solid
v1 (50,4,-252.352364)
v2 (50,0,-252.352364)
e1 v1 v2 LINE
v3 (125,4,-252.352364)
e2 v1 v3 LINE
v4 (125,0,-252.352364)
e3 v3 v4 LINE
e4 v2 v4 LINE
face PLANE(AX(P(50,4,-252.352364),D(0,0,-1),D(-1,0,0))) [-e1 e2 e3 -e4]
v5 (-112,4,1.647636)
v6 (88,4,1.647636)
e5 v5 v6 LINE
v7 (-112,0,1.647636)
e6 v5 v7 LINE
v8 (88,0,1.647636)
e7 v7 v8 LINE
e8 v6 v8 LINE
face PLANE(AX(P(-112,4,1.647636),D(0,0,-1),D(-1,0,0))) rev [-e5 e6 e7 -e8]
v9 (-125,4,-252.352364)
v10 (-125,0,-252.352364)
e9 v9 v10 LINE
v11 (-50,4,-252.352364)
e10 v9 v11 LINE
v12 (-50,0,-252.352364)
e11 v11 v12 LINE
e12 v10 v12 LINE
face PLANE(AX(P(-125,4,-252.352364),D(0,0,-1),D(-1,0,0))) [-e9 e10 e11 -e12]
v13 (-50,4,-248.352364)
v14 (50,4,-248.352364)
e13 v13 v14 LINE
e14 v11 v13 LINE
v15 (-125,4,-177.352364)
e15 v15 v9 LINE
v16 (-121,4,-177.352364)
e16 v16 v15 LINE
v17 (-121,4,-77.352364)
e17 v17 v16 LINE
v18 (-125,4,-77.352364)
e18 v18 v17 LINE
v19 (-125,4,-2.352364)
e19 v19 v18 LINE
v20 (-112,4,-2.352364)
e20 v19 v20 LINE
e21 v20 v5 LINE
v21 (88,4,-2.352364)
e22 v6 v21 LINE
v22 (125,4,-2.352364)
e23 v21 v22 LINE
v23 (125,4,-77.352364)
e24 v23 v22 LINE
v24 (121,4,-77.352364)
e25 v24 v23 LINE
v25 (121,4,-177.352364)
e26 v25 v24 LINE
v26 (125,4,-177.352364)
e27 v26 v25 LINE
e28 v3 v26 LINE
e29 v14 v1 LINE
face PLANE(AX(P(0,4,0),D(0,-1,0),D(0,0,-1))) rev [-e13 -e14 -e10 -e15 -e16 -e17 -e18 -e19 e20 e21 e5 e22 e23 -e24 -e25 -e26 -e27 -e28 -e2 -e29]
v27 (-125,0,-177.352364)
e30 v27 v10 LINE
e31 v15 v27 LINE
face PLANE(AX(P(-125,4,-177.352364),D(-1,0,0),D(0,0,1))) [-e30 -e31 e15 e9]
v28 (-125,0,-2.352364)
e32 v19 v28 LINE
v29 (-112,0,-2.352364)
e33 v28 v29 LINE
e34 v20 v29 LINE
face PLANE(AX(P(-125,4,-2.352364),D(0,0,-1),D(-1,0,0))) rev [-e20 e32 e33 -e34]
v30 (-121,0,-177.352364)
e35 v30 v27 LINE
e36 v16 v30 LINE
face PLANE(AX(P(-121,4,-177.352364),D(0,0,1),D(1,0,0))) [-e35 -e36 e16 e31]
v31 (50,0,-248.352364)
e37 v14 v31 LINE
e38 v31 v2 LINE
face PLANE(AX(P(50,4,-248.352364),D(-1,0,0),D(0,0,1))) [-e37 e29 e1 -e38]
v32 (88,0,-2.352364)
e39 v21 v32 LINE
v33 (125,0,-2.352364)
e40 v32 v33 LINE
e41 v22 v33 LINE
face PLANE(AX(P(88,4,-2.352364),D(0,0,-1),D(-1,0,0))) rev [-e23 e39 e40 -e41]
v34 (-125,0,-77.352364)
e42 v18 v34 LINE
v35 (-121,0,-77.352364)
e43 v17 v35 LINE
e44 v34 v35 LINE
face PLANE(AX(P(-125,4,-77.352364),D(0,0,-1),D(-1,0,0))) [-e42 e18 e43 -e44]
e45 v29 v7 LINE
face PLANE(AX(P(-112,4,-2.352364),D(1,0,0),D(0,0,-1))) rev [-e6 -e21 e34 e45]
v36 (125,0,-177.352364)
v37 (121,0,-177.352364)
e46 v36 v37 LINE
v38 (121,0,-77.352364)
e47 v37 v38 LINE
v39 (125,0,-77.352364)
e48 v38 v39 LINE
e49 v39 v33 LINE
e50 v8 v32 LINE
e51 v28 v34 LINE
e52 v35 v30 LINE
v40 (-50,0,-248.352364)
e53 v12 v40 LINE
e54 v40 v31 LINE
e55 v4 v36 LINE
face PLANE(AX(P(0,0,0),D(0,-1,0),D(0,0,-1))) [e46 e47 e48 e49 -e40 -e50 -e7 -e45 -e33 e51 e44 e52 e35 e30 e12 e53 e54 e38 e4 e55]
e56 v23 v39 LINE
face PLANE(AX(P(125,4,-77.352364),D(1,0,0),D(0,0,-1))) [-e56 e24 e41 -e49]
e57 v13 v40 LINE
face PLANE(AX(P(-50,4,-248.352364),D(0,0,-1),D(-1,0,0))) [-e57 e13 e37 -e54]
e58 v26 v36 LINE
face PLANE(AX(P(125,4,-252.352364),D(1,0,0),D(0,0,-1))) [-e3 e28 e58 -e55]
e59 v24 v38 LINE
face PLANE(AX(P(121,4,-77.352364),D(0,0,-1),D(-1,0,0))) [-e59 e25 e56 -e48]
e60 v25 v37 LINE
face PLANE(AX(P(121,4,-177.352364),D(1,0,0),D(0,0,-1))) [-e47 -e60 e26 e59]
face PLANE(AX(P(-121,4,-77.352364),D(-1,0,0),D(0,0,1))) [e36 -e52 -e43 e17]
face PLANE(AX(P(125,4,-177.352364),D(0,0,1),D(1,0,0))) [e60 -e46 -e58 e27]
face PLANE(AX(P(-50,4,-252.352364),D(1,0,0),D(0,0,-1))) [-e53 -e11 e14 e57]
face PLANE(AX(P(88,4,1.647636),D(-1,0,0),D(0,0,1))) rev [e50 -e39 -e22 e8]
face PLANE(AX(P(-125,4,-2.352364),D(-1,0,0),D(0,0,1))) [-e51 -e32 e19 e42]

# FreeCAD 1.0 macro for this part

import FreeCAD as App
import Part
import Sketcher

V = App.Vector

doc = App.newDocument("Part")
body = doc.addObject("PartDesign::Body", "Body")

# Sketch on XZ plane
sketch1 = doc.addObject("Sketcher::SketchObject", "Sketch")
body.addObject(sketch1)
sketch1.AttachmentSupport = (doc.XZ_Plane, [""])
sketch1.MapMode = "FlatFace"
sketch1.addGeometry(Part.LineSegment(V(-125, -2.4, 0), V(-112, -2.4, 0)), False)
sketch1.addGeometry(Part.LineSegment(V(-112, -2.4, 0), V(-112, 1.6, 0)), False)
sketch1.addGeometry(Part.LineSegment(V(-112, 1.6, 0), V(88, 1.6, 0)), False)
sketch1.addGeometry(Part.LineSegment(V(88, 1.6, 0), V(88, -2.4, 0)), False)
sketch1.addGeometry(Part.LineSegment(V(88, -2.4, 0), V(125, -2.4, 0)), False)
sketch1.addGeometry(Part.LineSegment(V(125, -2.4, 0), V(125, -77.4, 0)), False)
sketch1.addGeometry(Part.LineSegment(V(125, -77.4, 0), V(121, -77.4, 0)), False)
sketch1.addGeometry(Part.LineSegment(V(121, -77.4, 0), V(121, -177.4, 0)), False)
sketch1.addGeometry(Part.LineSegment(V(121, -177.4, 0), V(125, -177.4, 0)), False)
sketch1.addGeometry(Part.LineSegment(V(125, -177.4, 0), V(125, -252.4, 0)), False)
sketch1.addGeometry(Part.LineSegment(V(125, -252.4, 0), V(50, -252.4, 0)), False)
sketch1.addGeometry(Part.LineSegment(V(50, -252.4, 0), V(50, -248.4, 0)), False)
sketch1.addGeometry(Part.LineSegment(V(50, -248.4, 0), V(-50, -248.4, 0)), False)
sketch1.addGeometry(Part.LineSegment(V(-50, -248.4, 0), V(-50, -252.4, 0)), False)
sketch1.addGeometry(Part.LineSegment(V(-50, -252.4, 0), V(-125, -252.4, 0)), False)
sketch1.addGeometry(Part.LineSegment(V(-125, -252.4, 0), V(-125, -177.4, 0)), False)
sketch1.addGeometry(Part.LineSegment(V(-125, -177.4, 0), V(-121, -177.4, 0)), False)
sketch1.addGeometry(Part.LineSegment(V(-121, -177.4, 0), V(-121, -77.4, 0)), False)
sketch1.addGeometry(Part.LineSegment(V(-121, -77.4, 0), V(-125, -77.4, 0)), False)
sketch1.addGeometry(Part.LineSegment(V(-125, -77.4, 0), V(-125, -2.4, 0)), False)
sketch1.addConstraint(Sketcher.Constraint("Coincident", 0, 2, 1, 1))
sketch1.addConstraint(Sketcher.Constraint("Coincident", 1, 2, 2, 1))
sketch1.addConstraint(Sketcher.Constraint("Coincident", 2, 2, 3, 1))
sketch1.addConstraint(Sketcher.Constraint("Coincident", 3, 2, 4, 1))
sketch1.addConstraint(Sketcher.Constraint("Coincident", 4, 2, 5, 1))
sketch1.addConstraint(Sketcher.Constraint("Coincident", 5, 2, 6, 1))
sketch1.addConstraint(Sketcher.Constraint("Coincident", 6, 2, 7, 1))
sketch1.addConstraint(Sketcher.Constraint("Coincident", 7, 2, 8, 1))
sketch1.addConstraint(Sketcher.Constraint("Coincident", 8, 2, 9, 1))
sketch1.addConstraint(Sketcher.Constraint("Coincident", 9, 2, 10, 1))
sketch1.addConstraint(Sketcher.Constraint("Coincident", 10, 2, 11, 1))
sketch1.addConstraint(Sketcher.Constraint("Coincident", 11, 2, 12, 1))
sketch1.addConstraint(Sketcher.Constraint("Coincident", 12, 2, 13, 1))
sketch1.addConstraint(Sketcher.Constraint("Coincident", 13, 2, 14, 1))
sketch1.addConstraint(Sketcher.Constraint("Coincident", 14, 2, 15, 1))
sketch1.addConstraint(Sketcher.Constraint("Coincident", 15, 2, 16, 1))
sketch1.addConstraint(Sketcher.Constraint("Coincident", 16, 2, 17, 1))
sketch1.addConstraint(Sketcher.Constraint("Coincident", 17, 2, 18, 1))
sketch1.addConstraint(Sketcher.Constraint("Coincident", 18, 2, 19, 1))
sketch1.addConstraint(Sketcher.Constraint("Coincident", 19, 2, 0, 1))
sketch1.addConstraint(Sketcher.Constraint("Horizontal", 0))
sketch1.addConstraint(Sketcher.Constraint("Vertical", 1))
sketch1.addConstraint(Sketcher.Constraint("Horizontal", 2))
sketch1.addConstraint(Sketcher.Constraint("Vertical", 3))
sketch1.addConstraint(Sketcher.Constraint("Horizontal", 4))
sketch1.addConstraint(Sketcher.Constraint("Vertical", 5))
sketch1.addConstraint(Sketcher.Constraint("Horizontal", 6))
sketch1.addConstraint(Sketcher.Constraint("Vertical", 7))
sketch1.addConstraint(Sketcher.Constraint("Horizontal", 8))
sketch1.addConstraint(Sketcher.Constraint("Vertical", 9))
sketch1.addConstraint(Sketcher.Constraint("Horizontal", 10))
sketch1.addConstraint(Sketcher.Constraint("Vertical", 11))
sketch1.addConstraint(Sketcher.Constraint("Horizontal", 12))
sketch1.addConstraint(Sketcher.Constraint("Vertical", 13))
sketch1.addConstraint(Sketcher.Constraint("Horizontal", 14))
sketch1.addConstraint(Sketcher.Constraint("Vertical", 15))
sketch1.addConstraint(Sketcher.Constraint("Horizontal", 16))
sketch1.addConstraint(Sketcher.Constraint("Vertical", 17))
sketch1.addConstraint(Sketcher.Constraint("Horizontal", 18))
sketch1.addConstraint(Sketcher.Constraint("Vertical", 19))
sketch1.addConstraint(Sketcher.Constraint("Symmetric", 10, 2, 13, 2, -2))
sketch1.addConstraint(Sketcher.Constraint("Symmetric", 8, 2, 15, 2, -2))
sketch1.addConstraint(Sketcher.Constraint("Symmetric", 6, 2, 17, 2, -2))
sketch1.addConstraint(Sketcher.Constraint("Symmetric", 4, 2, 19, 2, -2))
sketch1.addConstraint(Sketcher.Constraint("Vertical", 5, 2, 8, 2))
sketch1.addConstraint(Sketcher.Constraint("Equal", 18, 1))
sketch1.addConstraint(Sketcher.Constraint("Equal", 14, 5))
sketch1.addConstraint(Sketcher.Constraint("Equal", 12, 7))
sketch1.addConstraint(Sketcher.Constraint("Equal", 5, 9))
sketch1.addConstraint(Sketcher.Constraint("Equal", 3, 11))
sketch1.addConstraint(Sketcher.Constraint("DistanceX", 0, 1, 0, 2, 13.0))
sketch1.addConstraint(Sketcher.Constraint("DistanceX", 2, 1, 2, 2, 200.0))
sketch1.addConstraint(Sketcher.Constraint("DistanceX", 4, 1, 4, 2, 37.0))
sketch1.addConstraint(Sketcher.Constraint("DistanceX", 6, 2, 6, 1, 4.0))
sketch1.addConstraint(Sketcher.Constraint("DistanceX", 10, 2, 10, 1, 75.0))
sketch1.addConstraint(Sketcher.Constraint("DistanceY", 0, 2, -1, 1, 2.352364))
pad1 = doc.addObject("PartDesign::Pad", "Pad")
body.addObject(pad1)
pad1.Profile = sketch1
pad1.Length = 4
pad1.Reversed = True

doc.recompute()
